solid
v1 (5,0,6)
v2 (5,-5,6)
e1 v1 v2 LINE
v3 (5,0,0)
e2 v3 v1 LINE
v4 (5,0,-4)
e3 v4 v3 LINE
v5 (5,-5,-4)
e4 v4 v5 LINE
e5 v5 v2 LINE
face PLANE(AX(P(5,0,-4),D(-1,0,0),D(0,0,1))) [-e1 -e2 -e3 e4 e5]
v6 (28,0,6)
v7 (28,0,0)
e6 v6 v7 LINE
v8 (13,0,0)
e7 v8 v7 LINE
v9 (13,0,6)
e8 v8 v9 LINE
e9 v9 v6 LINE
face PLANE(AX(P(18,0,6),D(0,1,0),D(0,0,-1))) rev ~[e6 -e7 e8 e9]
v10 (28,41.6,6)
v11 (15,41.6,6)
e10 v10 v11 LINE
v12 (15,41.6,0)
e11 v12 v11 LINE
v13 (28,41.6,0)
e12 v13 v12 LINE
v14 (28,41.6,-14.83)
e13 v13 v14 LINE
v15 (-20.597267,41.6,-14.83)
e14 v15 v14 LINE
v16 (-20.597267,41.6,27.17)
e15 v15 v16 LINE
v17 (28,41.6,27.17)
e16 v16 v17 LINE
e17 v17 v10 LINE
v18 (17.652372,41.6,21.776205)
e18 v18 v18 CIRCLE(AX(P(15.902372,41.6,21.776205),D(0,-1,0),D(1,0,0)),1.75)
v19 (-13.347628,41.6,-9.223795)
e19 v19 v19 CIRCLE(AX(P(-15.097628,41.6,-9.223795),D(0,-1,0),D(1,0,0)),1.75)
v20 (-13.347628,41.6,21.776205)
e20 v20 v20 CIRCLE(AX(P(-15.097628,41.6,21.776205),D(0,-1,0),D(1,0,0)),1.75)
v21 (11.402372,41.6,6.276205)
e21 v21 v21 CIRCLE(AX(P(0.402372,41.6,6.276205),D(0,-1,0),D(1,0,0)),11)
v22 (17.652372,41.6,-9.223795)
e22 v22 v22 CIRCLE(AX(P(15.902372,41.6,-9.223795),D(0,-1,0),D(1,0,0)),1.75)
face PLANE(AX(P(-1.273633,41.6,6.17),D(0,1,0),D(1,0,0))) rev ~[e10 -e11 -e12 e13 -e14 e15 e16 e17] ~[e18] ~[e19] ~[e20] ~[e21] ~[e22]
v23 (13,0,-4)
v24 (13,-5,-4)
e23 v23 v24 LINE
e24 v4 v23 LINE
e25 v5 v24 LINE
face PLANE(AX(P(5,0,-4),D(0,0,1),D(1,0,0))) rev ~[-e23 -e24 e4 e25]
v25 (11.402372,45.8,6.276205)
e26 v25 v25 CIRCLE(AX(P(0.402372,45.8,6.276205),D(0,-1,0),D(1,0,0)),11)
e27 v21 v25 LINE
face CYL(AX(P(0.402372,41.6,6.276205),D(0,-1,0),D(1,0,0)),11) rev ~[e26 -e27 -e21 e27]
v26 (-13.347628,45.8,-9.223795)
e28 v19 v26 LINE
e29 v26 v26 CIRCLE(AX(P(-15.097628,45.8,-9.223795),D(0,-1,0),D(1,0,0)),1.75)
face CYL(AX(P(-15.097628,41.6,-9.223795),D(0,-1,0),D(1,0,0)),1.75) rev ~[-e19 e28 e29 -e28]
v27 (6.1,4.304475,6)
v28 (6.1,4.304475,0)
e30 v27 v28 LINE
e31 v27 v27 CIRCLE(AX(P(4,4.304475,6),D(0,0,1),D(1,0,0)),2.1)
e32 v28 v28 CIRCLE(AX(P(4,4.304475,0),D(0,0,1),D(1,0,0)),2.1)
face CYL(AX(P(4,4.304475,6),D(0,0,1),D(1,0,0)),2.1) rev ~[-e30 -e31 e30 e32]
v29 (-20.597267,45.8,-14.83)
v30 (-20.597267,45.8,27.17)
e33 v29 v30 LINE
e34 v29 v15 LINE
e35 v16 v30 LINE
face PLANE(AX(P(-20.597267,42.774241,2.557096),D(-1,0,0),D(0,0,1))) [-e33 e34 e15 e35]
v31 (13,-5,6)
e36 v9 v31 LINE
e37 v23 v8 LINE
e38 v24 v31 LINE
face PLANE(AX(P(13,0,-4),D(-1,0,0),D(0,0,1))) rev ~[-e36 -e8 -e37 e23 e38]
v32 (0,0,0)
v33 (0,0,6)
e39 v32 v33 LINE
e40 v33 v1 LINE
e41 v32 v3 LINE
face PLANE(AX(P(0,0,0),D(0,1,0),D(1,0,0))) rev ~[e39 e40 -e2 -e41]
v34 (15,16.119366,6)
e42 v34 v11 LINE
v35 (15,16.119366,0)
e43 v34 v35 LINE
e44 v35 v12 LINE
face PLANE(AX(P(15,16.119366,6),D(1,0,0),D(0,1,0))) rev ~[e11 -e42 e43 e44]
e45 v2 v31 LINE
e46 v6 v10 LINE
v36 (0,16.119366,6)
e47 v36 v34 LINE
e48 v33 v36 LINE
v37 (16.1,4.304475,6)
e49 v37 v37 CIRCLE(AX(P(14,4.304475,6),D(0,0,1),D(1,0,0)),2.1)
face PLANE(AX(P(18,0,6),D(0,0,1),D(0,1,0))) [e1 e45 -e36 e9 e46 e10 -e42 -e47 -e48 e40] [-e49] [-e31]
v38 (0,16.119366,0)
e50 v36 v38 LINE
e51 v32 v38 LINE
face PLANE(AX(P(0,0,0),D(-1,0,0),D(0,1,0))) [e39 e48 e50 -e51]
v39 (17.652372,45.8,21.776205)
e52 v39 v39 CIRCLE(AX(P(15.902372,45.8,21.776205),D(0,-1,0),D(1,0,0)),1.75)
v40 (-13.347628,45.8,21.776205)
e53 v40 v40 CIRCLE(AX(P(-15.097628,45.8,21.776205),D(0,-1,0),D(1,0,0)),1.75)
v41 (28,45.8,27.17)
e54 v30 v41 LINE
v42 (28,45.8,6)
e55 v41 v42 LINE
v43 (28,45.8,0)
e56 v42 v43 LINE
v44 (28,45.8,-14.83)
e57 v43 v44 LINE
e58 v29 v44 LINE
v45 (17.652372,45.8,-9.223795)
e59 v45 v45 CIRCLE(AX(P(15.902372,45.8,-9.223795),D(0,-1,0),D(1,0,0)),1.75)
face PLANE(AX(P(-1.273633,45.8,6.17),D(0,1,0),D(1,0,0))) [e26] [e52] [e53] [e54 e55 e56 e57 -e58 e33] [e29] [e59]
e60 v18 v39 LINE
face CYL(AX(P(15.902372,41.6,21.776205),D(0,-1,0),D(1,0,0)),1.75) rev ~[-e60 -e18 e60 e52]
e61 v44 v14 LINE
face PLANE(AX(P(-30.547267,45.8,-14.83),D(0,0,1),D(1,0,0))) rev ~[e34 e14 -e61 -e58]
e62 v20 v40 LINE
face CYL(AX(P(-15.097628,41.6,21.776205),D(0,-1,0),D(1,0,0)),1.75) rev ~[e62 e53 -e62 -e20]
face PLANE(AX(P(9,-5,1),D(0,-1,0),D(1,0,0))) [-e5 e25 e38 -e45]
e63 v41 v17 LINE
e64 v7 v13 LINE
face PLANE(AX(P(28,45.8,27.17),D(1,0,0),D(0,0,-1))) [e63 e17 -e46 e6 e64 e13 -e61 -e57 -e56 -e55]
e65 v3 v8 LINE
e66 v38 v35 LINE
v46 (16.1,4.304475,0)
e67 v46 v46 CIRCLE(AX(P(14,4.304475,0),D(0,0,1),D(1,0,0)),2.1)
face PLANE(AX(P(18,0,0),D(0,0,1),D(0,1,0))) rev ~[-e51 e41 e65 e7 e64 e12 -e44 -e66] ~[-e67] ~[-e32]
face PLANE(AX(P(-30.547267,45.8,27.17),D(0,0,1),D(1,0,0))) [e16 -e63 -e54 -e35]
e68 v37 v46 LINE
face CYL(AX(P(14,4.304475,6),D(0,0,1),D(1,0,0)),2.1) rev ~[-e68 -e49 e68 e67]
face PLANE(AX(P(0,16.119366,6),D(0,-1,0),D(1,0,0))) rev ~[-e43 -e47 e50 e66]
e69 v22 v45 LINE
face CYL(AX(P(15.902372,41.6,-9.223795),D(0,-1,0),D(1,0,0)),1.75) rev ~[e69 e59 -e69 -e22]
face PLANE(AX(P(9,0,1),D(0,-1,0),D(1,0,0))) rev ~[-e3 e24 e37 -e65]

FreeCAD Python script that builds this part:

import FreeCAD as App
import Part
import Sketcher

V = App.Vector
Q = App.Units.Quantity

doc = App.newDocument("Part")
body = doc.addObject("PartDesign::Body", "Body")

# Sketch on XY plane
sketch1 = doc.addObject("Sketcher::SketchObject", "Sketch")
body.addObject(sketch1)
sketch1.AttachmentSupport = (doc.XY_Plane, [""])
sketch1.MapMode = "FlatFace"
sketch1.addGeometry(Part.LineSegment(V(0, 50, 0), V(0, 0, 0)), False)
sketch1.addGeometry(Part.LineSegment(V(0, 0, 0), V(18, 0, 0)), False)
sketch1.addGeometry(Part.LineSegment(V(18, 0, 0), V(18, 50, 0)), False)
sketch1.addGeometry(Part.LineSegment(V(18, 50, 0), V(0, 50, 0)), False)
sketch1.addConstraint(Sketcher.Constraint("Coincident", 0, 2, 1, 1))
sketch1.addConstraint(Sketcher.Constraint("Coincident", 1, 2, 2, 1))
sketch1.addConstraint(Sketcher.Constraint("Coincident", 2, 2, 3, 1))
sketch1.addConstraint(Sketcher.Constraint("Coincident", 3, 2, 0, 1))
sketch1.addConstraint(Sketcher.Constraint("Vertical", 0))
sketch1.addConstraint(Sketcher.Constraint("Horizontal", 1))
sketch1.addConstraint(Sketcher.Constraint("Vertical", 2))
sketch1.addConstraint(Sketcher.Constraint("Horizontal", 3))
sketch1.addConstraint(Sketcher.Constraint("Coincident", 0, 2, -1, 1))
sketch1.addConstraint(Sketcher.Constraint("DistanceX", 1, 1, 1, 2, Q("18 mm")))
sketch1.addConstraint(Sketcher.Constraint("DistanceY", 0, 2, 0, 1, Q("50 mm")))
pad1 = doc.addObject("PartDesign::Pad", "Pad")
body.addObject(pad1)
pad1.Profile = sketch1
pad1.Length = 6

# Sketch on XY plane
sketch2 = doc.addObject("Sketcher::SketchObject", "Sketch001")
body.addObject(sketch2)
sketch2.AttachmentSupport = (doc.XY_Plane, [""])
sketch2.MapMode = "FlatFace"
sketch2.AttachmentOffset = App.Placement(V(0, 0, 6), App.Rotation())
sketch2.addGeometry(Part.Circle(V(4, 4.3, 0), V(0, 0, 1), 2.1), False)
sketch2.addGeometry(Part.Circle(V(14, 4.3, 0), V(0, 0, 1), 2.1), False)
sketch2.addConstraint(Sketcher.Constraint("Equal", 0, 1))
sketch2.addConstraint(Sketcher.Constraint("Horizontal", 0, 3, 1, 3))
sketch2.addConstraint(Sketcher.Constraint("Diameter", 0, Q("4.2 mm")))
sketch2.addConstraint(Sketcher.Constraint("DistanceX", -1, 1, 0, 3, Q("4 mm")))
sketch2.addConstraint(Sketcher.Constraint("DistanceX", -1, 1, 1, 3, Q("14 mm")))
sketch2.addConstraint(Sketcher.Constraint("DistanceY", -1, 1, 0, 3, Q("4.304475 mm")))
pocket1 = doc.addObject("PartDesign::Pocket", "Pocket")
body.addObject(pocket1)
pocket1.Profile = sketch2
pocket1.Length = 6

# Sketch on XZ plane
sketch3 = doc.addObject("Sketcher::SketchObject", "Sketch002")
body.addObject(sketch3)
sketch3.AttachmentSupport = (doc.XZ_Plane, [""])
sketch3.MapMode = "FlatFace"
sketch3.addGeometry(Part.LineSegment(V(5, 6, 0), V(5, -4, 0)), False)
sketch3.addGeometry(Part.LineSegment(V(5, -4, 0), V(13, -4, 0)), False)
sketch3.addGeometry(Part.LineSegment(V(13, -4, 0), V(13, 6, 0)), False)
sketch3.addGeometry(Part.LineSegment(V(13, 6, 0), V(5, 6, 0)), False)
sketch3.addConstraint(Sketcher.Constraint("Coincident", 0, 2, 1, 1))
sketch3.addConstraint(Sketcher.Constraint("Coincident", 1, 2, 2, 1))
sketch3.addConstraint(Sketcher.Constraint("Coincident", 2, 2, 3, 1))
sketch3.addConstraint(Sketcher.Constraint("Coincident", 3, 2, 0, 1))
sketch3.addConstraint(Sketcher.Constraint("Vertical", 0))
sketch3.addConstraint(Sketcher.Constraint("Horizontal", 1))
sketch3.addConstraint(Sketcher.Constraint("Vertical", 2))
sketch3.addConstraint(Sketcher.Constraint("Horizontal", 3))
sketch3.addConstraint(Sketcher.Constraint("DistanceX", 1, 1, 1, 2, Q("8 mm")))
sketch3.addConstraint(Sketcher.Constraint("DistanceY", 0, 2, 0, 1, Q("10 mm")))
sketch3.addConstraint(Sketcher.Constraint("DistanceX", -1, 1, 0, 2, Q("5 mm")))
sketch3.addConstraint(Sketcher.Constraint("DistanceY", 0, 2, -1, 1, Q("4 mm")))
pad2 = doc.addObject("PartDesign::Pad", "Pad001")
body.addObject(pad2)
pad2.Profile = sketch3
pad2.Length = 5

# Sketch on YZ plane
sketch4 = doc.addObject("Sketcher::SketchObject", "Sketch003")
body.addObject(sketch4)
sketch4.AttachmentSupport = (doc.YZ_Plane, [""])
sketch4.MapMode = "FlatFace"
sketch4.AttachmentOffset = App.Placement(V(0, 0, 18), App.Rotation())
sketch4.addGeometry(Part.LineSegment(V(50, 6, 0), V(0, 6, 0)), False)
sketch4.addGeometry(Part.LineSegment(V(0, 6, 0), V(0, 0, 0)), False)
sketch4.addGeometry(Part.LineSegment(V(0, 0, 0), V(50, 0, 0)), False)
sketch4.addGeometry(Part.LineSegment(V(50, 0, 0), V(50, 6, 0)), False)
sketch4.addConstraint(Sketcher.Constraint("Coincident", 0, 2, 1, 1))
sketch4.addConstraint(Sketcher.Constraint("Coincident", 1, 2, 2, 1))
sketch4.addConstraint(Sketcher.Constraint("Coincident", 2, 2, 3, 1))
sketch4.addConstraint(Sketcher.Constraint("Coincident", 3, 2, 0, 1))
sketch4.addConstraint(Sketcher.Constraint("Horizontal", 0))
sketch4.addConstraint(Sketcher.Constraint("Vertical", 1))
sketch4.addConstraint(Sketcher.Constraint("Horizontal", 2))
sketch4.addConstraint(Sketcher.Constraint("Vertical", 3))
sketch4.addConstraint(Sketcher.Constraint("Coincident", 1, 2, -1, 1))
sketch4.addConstraint(Sketcher.Constraint("DistanceX", 0, 2, 0, 1, Q("50 mm")))
sketch4.addConstraint(Sketcher.Constraint("DistanceY", 1, 2, 1, 1, Q("6 mm")))
pad3 = doc.addObject("PartDesign::Pad", "Pad002")
body.addObject(pad3)
pad3.Profile = sketch4
pad3.Length = 10

# Sketch on XY plane
sketch5 = doc.addObject("Sketcher::SketchObject", "Sketch004")
body.addObject(sketch5)
sketch5.AttachmentSupport = (doc.XY_Plane, [""])
sketch5.MapMode = "FlatFace"
sketch5.AttachmentOffset = App.Placement(V(0, 0, 6), App.Rotation())
sketch5.addGeometry(Part.LineSegment(V(0, 50, 0), V(0, 16, 0)), False)
sketch5.addGeometry(Part.LineSegment(V(0, 16, 0), V(15, 16, 0)), False)
sketch5.addGeometry(Part.LineSegment(V(15, 16, 0), V(15, 50, 0)), False)
sketch5.addGeometry(Part.LineSegment(V(15, 50, 0), V(0, 50, 0)), False)
sketch5.addConstraint(Sketcher.Constraint("Coincident", 0, 2, 1, 1))
sketch5.addConstraint(Sketcher.Constraint("Coincident", 1, 2, 2, 1))
sketch5.addConstraint(Sketcher.Constraint("Coincident", 2, 2, 3, 1))
sketch5.addConstraint(Sketcher.Constraint("Coincident", 3, 2, 0, 1))
sketch5.addConstraint(Sketcher.Constraint("Vertical", 0))
sketch5.addConstraint(Sketcher.Constraint("Horizontal", 1))
sketch5.addConstraint(Sketcher.Constraint("Vertical", 2))
sketch5.addConstraint(Sketcher.Constraint("Horizontal", 3))
sketch5.addConstraint(Sketcher.Constraint("PointOnObject", 0, 2, -2))
sketch5.addConstraint(Sketcher.Constraint("DistanceX", 1, 1, 1, 2, Q("15 mm")))
sketch5.addConstraint(Sketcher.Constraint("DistanceY", -1, 1, 2, 2, Q("50 mm")))
sketch5.addConstraint(Sketcher.Constraint("DistanceY", 0, 2, 0, 1, Q("33.880634 mm")))
pocket2 = doc.addObject("PartDesign::Pocket", "Pocket001")
body.addObject(pocket2)
pocket2.Profile = sketch5
pocket2.Length = 10

# Sketch on XZ plane
sketch6 = doc.addObject("Sketcher::SketchObject", "Sketch005")
body.addObject(sketch6)
sketch6.AttachmentSupport = (doc.XZ_Plane, [""])
sketch6.MapMode = "FlatFace"
sketch6.AttachmentOffset = App.Placement(V(0, 0, -50), App.Rotation())
sketch6.addGeometry(Part.LineSegment(V(10, -2, 0), V(10, 6, 0)), False)
sketch6.addGeometry(Part.LineSegment(V(10, 6, 0), V(28, 6, 0)), False)
sketch6.addGeometry(Part.LineSegment(V(28, 6, 0), V(28, -2, 0)), False)
sketch6.addGeometry(Part.LineSegment(V(28, -2, 0), V(10, -2, 0)), False)
sketch6.addConstraint(Sketcher.Constraint("Coincident", 0, 2, 1, 1))
sketch6.addConstraint(Sketcher.Constraint("Coincident", 1, 2, 2, 1))
sketch6.addConstraint(Sketcher.Constraint("Coincident", 2, 2, 3, 1))
sketch6.addConstraint(Sketcher.Constraint("Coincident", 3, 2, 0, 1))
sketch6.addConstraint(Sketcher.Constraint("Vertical", 0))
sketch6.addConstraint(Sketcher.Constraint("Horizontal", 1))
sketch6.addConstraint(Sketcher.Constraint("Vertical", 2))
sketch6.addConstraint(Sketcher.Constraint("Horizontal", 3))
sketch6.addConstraint(Sketcher.Constraint("DistanceY", -1, 1, 0, 2, Q("6 mm")))
sketch6.addConstraint(Sketcher.Constraint("DistanceX", -1, 1, 1, 2, Q("28 mm")))
sketch6.addConstraint(Sketcher.Constraint("DistanceX", 1, 1, 1, 2, Q("18.194641 mm")))
sketch6.addConstraint(Sketcher.Constraint("DistanceY", 0, 1, 0, 2, Q("8.438339 mm")))
pocket3 = doc.addObject("PartDesign::Pocket", "Pocket002")
body.addObject(pocket3)
pocket3.Profile = sketch6
pocket3.Length = 4.2
pocket3.Reversed = True

# Sketch on XZ plane
sketch7 = doc.addObject("Sketcher::SketchObject", "Sketch006")
body.addObject(sketch7)
sketch7.AttachmentSupport = (doc.XZ_Plane, [""])
sketch7.MapMode = "FlatFace"
sketch7.AttachmentOffset = App.Placement(V(0, 0, -45.8), App.Rotation())
sketch7.addGeometry(Part.LineSegment(V(-31, -15, 0), V(-31, 27, 0)), False)
sketch7.addGeometry(Part.LineSegment(V(-31, 27, 0), V(28, 27, 0)), False)
sketch7.addGeometry(Part.LineSegment(V(28, 27, 0), V(28, -15, 0)), False)
sketch7.addGeometry(Part.LineSegment(V(28, -15, 0), V(-31, -15, 0)), False)
sketch7.addConstraint(Sketcher.Constraint("Coincident", 0, 2, 1, 1))
sketch7.addConstraint(Sketcher.Constraint("Coincident", 1, 2, 2, 1))
sketch7.addConstraint(Sketcher.Constraint("Coincident", 2, 2, 3, 1))
sketch7.addConstraint(Sketcher.Constraint("Coincident", 3, 2, 0, 1))
sketch7.addConstraint(Sketcher.Constraint("Vertical", 0))
sketch7.addConstraint(Sketcher.Constraint("Horizontal", 1))
sketch7.addConstraint(Sketcher.Constraint("Vertical", 2))
sketch7.addConstraint(Sketcher.Constraint("Horizontal", 3))
sketch7.addConstraint(Sketcher.Constraint("DistanceY", 0, 1, 0, 2, Q("42 mm")))
sketch7.addConstraint(Sketcher.Constraint("DistanceX", -1, 1, 1, 2, Q("28 mm")))
sketch7.addConstraint(Sketcher.Constraint("DistanceY", -1, 1, 0, 2, Q("27.17 mm")))
sketch7.addConstraint(Sketcher.Constraint("DistanceX", 1, 1, 1, 2, Q("58.547267 mm")))
pad4 = doc.addObject("PartDesign::Pad", "Pad003")
body.addObject(pad4)
pad4.Profile = sketch7
pad4.Length = 4.2

# Sketch on YZ plane
sketch8 = doc.addObject("Sketcher::SketchObject", "Sketch007")
body.addObject(sketch8)
sketch8.AttachmentSupport = (doc.YZ_Plane, [""])
sketch8.MapMode = "FlatFace"
sketch8.AttachmentOffset = App.Placement(V(0, 0, -30.547267), App.Rotation())
sketch8.addGeometry(Part.LineSegment(V(46, -22, 0), V(40, -22, 0)), False)
sketch8.addGeometry(Part.LineSegment(V(40, -22, 0), V(40, 27, 0)), False)
sketch8.addGeometry(Part.LineSegment(V(40, 27, 0), V(46, 27, 0)), False)
sketch8.addGeometry(Part.LineSegment(V(46, 27, 0), V(46, -22, 0)), False)
sketch8.addConstraint(Sketcher.Constraint("Coincident", 0, 2, 1, 1))
sketch8.addConstraint(Sketcher.Constraint("Coincident", 1, 2, 2, 1))
sketch8.addConstraint(Sketcher.Constraint("Coincident", 2, 2, 3, 1))
sketch8.addConstraint(Sketcher.Constraint("Coincident", 3, 2, 0, 1))
sketch8.addConstraint(Sketcher.Constraint("Horizontal", 0))
sketch8.addConstraint(Sketcher.Constraint("Vertical", 1))
sketch8.addConstraint(Sketcher.Constraint("Horizontal", 2))
sketch8.addConstraint(Sketcher.Constraint("Vertical", 3))
sketch8.addConstraint(Sketcher.Constraint("DistanceX", -1, 1, 2, 2, Q("45.8 mm")))
sketch8.addConstraint(Sketcher.Constraint("DistanceY", -1, 1, 1, 2, Q("27.17 mm")))
sketch8.addConstraint(Sketcher.Constraint("DistanceX", 0, 2, 0, 1, Q("6.051518 mm")))
sketch8.addConstraint(Sketcher.Constraint("DistanceY", 1, 1, 1, 2, Q("49.225807 mm")))
pocket4 = doc.addObject("PartDesign::Pocket", "Pocket003")
body.addObject(pocket4)
pocket4.Profile = sketch8
pocket4.Length = 9.95
pocket4.Reversed = True

# Sketch on XZ plane
sketch9 = doc.addObject("Sketcher::SketchObject", "Sketch008")
body.addObject(sketch9)
sketch9.AttachmentSupport = (doc.XZ_Plane, [""])
sketch9.MapMode = "FlatFace"
sketch9.AttachmentOffset = App.Placement(V(0, 0, -41.6), App.Rotation())
sketch9.addGeometry(Part.Circle(V(15.9, -9.2, 0), V(0, 0, 1), 1.8), False)
sketch9.addGeometry(Part.Circle(V(-15.1, -9.2, 0), V(0, 0, 1), 1.8), False)
sketch9.addGeometry(Part.Circle(V(15.9, 21.8, 0), V(0, 0, 1), 1.8), False)
sketch9.addGeometry(Part.Circle(V(-15.1, 21.8, 0), V(0, 0, 1), 1.8), False)
sketch9.addConstraint(Sketcher.Constraint("Equal", 0, 1))
sketch9.addConstraint(Sketcher.Constraint("Equal", 1, 2))
sketch9.addConstraint(Sketcher.Constraint("Equal", 2, 3))
sketch9.addConstraint(Sketcher.Constraint("Horizontal", 0, 3, 1, 3))
sketch9.addConstraint(Sketcher.Constraint("Horizontal", 2, 3, 3, 3))
sketch9.addConstraint(Sketcher.Constraint("Vertical", 0, 3, 2, 3))
sketch9.addConstraint(Sketcher.Constraint("Vertical", 1, 3, 3, 3))
sketch9.addConstraint(Sketcher.Constraint("Diameter", 0, Q("3.5 mm")))
sketch9.addConstraint(Sketcher.Constraint("DistanceX", 1, 3, 0, 3, Q("31 mm")))
sketch9.addConstraint(Sketcher.Constraint("DistanceY", 0, 3, 2, 3, Q("31 mm")))
sketch9.addConstraint(Sketcher.Constraint("DistanceX", -1, 1, 0, 3, Q("15.902372 mm")))
sketch9.addConstraint(Sketcher.Constraint("DistanceY", 0, 3, -1, 1, Q("9.223795 mm")))
pocket5 = doc.addObject("PartDesign::Pocket", "Pocket004")
body.addObject(pocket5)
pocket5.Profile = sketch9
pocket5.Length = 9.95

# Sketch on XZ plane
sketch10 = doc.addObject("Sketcher::SketchObject", "Sketch009")
body.addObject(sketch10)
sketch10.AttachmentSupport = (doc.XZ_Plane, [""])
sketch10.MapMode = "FlatFace"
sketch10.AttachmentOffset = App.Placement(V(0, 0, -41.6), App.Rotation())
sketch10.addGeometry(Part.Circle(V(0, 6, 0), V(0, 0, 1), 11), False)
sketch10.addConstraint(Sketcher.Constraint("Diameter", 0, Q("22 mm")))
sketch10.addConstraint(Sketcher.Constraint("DistanceX", -1, 1, 0, 3, Q("0.402372 mm")))
sketch10.addConstraint(Sketcher.Constraint("DistanceY", -1, 1, 0, 3, Q("6.276205 mm")))
pocket6 = doc.addObject("PartDesign::Pocket", "Pocket005")
body.addObject(pocket6)
pocket6.Profile = sketch10
pocket6.Length = 10

doc.recompute()
